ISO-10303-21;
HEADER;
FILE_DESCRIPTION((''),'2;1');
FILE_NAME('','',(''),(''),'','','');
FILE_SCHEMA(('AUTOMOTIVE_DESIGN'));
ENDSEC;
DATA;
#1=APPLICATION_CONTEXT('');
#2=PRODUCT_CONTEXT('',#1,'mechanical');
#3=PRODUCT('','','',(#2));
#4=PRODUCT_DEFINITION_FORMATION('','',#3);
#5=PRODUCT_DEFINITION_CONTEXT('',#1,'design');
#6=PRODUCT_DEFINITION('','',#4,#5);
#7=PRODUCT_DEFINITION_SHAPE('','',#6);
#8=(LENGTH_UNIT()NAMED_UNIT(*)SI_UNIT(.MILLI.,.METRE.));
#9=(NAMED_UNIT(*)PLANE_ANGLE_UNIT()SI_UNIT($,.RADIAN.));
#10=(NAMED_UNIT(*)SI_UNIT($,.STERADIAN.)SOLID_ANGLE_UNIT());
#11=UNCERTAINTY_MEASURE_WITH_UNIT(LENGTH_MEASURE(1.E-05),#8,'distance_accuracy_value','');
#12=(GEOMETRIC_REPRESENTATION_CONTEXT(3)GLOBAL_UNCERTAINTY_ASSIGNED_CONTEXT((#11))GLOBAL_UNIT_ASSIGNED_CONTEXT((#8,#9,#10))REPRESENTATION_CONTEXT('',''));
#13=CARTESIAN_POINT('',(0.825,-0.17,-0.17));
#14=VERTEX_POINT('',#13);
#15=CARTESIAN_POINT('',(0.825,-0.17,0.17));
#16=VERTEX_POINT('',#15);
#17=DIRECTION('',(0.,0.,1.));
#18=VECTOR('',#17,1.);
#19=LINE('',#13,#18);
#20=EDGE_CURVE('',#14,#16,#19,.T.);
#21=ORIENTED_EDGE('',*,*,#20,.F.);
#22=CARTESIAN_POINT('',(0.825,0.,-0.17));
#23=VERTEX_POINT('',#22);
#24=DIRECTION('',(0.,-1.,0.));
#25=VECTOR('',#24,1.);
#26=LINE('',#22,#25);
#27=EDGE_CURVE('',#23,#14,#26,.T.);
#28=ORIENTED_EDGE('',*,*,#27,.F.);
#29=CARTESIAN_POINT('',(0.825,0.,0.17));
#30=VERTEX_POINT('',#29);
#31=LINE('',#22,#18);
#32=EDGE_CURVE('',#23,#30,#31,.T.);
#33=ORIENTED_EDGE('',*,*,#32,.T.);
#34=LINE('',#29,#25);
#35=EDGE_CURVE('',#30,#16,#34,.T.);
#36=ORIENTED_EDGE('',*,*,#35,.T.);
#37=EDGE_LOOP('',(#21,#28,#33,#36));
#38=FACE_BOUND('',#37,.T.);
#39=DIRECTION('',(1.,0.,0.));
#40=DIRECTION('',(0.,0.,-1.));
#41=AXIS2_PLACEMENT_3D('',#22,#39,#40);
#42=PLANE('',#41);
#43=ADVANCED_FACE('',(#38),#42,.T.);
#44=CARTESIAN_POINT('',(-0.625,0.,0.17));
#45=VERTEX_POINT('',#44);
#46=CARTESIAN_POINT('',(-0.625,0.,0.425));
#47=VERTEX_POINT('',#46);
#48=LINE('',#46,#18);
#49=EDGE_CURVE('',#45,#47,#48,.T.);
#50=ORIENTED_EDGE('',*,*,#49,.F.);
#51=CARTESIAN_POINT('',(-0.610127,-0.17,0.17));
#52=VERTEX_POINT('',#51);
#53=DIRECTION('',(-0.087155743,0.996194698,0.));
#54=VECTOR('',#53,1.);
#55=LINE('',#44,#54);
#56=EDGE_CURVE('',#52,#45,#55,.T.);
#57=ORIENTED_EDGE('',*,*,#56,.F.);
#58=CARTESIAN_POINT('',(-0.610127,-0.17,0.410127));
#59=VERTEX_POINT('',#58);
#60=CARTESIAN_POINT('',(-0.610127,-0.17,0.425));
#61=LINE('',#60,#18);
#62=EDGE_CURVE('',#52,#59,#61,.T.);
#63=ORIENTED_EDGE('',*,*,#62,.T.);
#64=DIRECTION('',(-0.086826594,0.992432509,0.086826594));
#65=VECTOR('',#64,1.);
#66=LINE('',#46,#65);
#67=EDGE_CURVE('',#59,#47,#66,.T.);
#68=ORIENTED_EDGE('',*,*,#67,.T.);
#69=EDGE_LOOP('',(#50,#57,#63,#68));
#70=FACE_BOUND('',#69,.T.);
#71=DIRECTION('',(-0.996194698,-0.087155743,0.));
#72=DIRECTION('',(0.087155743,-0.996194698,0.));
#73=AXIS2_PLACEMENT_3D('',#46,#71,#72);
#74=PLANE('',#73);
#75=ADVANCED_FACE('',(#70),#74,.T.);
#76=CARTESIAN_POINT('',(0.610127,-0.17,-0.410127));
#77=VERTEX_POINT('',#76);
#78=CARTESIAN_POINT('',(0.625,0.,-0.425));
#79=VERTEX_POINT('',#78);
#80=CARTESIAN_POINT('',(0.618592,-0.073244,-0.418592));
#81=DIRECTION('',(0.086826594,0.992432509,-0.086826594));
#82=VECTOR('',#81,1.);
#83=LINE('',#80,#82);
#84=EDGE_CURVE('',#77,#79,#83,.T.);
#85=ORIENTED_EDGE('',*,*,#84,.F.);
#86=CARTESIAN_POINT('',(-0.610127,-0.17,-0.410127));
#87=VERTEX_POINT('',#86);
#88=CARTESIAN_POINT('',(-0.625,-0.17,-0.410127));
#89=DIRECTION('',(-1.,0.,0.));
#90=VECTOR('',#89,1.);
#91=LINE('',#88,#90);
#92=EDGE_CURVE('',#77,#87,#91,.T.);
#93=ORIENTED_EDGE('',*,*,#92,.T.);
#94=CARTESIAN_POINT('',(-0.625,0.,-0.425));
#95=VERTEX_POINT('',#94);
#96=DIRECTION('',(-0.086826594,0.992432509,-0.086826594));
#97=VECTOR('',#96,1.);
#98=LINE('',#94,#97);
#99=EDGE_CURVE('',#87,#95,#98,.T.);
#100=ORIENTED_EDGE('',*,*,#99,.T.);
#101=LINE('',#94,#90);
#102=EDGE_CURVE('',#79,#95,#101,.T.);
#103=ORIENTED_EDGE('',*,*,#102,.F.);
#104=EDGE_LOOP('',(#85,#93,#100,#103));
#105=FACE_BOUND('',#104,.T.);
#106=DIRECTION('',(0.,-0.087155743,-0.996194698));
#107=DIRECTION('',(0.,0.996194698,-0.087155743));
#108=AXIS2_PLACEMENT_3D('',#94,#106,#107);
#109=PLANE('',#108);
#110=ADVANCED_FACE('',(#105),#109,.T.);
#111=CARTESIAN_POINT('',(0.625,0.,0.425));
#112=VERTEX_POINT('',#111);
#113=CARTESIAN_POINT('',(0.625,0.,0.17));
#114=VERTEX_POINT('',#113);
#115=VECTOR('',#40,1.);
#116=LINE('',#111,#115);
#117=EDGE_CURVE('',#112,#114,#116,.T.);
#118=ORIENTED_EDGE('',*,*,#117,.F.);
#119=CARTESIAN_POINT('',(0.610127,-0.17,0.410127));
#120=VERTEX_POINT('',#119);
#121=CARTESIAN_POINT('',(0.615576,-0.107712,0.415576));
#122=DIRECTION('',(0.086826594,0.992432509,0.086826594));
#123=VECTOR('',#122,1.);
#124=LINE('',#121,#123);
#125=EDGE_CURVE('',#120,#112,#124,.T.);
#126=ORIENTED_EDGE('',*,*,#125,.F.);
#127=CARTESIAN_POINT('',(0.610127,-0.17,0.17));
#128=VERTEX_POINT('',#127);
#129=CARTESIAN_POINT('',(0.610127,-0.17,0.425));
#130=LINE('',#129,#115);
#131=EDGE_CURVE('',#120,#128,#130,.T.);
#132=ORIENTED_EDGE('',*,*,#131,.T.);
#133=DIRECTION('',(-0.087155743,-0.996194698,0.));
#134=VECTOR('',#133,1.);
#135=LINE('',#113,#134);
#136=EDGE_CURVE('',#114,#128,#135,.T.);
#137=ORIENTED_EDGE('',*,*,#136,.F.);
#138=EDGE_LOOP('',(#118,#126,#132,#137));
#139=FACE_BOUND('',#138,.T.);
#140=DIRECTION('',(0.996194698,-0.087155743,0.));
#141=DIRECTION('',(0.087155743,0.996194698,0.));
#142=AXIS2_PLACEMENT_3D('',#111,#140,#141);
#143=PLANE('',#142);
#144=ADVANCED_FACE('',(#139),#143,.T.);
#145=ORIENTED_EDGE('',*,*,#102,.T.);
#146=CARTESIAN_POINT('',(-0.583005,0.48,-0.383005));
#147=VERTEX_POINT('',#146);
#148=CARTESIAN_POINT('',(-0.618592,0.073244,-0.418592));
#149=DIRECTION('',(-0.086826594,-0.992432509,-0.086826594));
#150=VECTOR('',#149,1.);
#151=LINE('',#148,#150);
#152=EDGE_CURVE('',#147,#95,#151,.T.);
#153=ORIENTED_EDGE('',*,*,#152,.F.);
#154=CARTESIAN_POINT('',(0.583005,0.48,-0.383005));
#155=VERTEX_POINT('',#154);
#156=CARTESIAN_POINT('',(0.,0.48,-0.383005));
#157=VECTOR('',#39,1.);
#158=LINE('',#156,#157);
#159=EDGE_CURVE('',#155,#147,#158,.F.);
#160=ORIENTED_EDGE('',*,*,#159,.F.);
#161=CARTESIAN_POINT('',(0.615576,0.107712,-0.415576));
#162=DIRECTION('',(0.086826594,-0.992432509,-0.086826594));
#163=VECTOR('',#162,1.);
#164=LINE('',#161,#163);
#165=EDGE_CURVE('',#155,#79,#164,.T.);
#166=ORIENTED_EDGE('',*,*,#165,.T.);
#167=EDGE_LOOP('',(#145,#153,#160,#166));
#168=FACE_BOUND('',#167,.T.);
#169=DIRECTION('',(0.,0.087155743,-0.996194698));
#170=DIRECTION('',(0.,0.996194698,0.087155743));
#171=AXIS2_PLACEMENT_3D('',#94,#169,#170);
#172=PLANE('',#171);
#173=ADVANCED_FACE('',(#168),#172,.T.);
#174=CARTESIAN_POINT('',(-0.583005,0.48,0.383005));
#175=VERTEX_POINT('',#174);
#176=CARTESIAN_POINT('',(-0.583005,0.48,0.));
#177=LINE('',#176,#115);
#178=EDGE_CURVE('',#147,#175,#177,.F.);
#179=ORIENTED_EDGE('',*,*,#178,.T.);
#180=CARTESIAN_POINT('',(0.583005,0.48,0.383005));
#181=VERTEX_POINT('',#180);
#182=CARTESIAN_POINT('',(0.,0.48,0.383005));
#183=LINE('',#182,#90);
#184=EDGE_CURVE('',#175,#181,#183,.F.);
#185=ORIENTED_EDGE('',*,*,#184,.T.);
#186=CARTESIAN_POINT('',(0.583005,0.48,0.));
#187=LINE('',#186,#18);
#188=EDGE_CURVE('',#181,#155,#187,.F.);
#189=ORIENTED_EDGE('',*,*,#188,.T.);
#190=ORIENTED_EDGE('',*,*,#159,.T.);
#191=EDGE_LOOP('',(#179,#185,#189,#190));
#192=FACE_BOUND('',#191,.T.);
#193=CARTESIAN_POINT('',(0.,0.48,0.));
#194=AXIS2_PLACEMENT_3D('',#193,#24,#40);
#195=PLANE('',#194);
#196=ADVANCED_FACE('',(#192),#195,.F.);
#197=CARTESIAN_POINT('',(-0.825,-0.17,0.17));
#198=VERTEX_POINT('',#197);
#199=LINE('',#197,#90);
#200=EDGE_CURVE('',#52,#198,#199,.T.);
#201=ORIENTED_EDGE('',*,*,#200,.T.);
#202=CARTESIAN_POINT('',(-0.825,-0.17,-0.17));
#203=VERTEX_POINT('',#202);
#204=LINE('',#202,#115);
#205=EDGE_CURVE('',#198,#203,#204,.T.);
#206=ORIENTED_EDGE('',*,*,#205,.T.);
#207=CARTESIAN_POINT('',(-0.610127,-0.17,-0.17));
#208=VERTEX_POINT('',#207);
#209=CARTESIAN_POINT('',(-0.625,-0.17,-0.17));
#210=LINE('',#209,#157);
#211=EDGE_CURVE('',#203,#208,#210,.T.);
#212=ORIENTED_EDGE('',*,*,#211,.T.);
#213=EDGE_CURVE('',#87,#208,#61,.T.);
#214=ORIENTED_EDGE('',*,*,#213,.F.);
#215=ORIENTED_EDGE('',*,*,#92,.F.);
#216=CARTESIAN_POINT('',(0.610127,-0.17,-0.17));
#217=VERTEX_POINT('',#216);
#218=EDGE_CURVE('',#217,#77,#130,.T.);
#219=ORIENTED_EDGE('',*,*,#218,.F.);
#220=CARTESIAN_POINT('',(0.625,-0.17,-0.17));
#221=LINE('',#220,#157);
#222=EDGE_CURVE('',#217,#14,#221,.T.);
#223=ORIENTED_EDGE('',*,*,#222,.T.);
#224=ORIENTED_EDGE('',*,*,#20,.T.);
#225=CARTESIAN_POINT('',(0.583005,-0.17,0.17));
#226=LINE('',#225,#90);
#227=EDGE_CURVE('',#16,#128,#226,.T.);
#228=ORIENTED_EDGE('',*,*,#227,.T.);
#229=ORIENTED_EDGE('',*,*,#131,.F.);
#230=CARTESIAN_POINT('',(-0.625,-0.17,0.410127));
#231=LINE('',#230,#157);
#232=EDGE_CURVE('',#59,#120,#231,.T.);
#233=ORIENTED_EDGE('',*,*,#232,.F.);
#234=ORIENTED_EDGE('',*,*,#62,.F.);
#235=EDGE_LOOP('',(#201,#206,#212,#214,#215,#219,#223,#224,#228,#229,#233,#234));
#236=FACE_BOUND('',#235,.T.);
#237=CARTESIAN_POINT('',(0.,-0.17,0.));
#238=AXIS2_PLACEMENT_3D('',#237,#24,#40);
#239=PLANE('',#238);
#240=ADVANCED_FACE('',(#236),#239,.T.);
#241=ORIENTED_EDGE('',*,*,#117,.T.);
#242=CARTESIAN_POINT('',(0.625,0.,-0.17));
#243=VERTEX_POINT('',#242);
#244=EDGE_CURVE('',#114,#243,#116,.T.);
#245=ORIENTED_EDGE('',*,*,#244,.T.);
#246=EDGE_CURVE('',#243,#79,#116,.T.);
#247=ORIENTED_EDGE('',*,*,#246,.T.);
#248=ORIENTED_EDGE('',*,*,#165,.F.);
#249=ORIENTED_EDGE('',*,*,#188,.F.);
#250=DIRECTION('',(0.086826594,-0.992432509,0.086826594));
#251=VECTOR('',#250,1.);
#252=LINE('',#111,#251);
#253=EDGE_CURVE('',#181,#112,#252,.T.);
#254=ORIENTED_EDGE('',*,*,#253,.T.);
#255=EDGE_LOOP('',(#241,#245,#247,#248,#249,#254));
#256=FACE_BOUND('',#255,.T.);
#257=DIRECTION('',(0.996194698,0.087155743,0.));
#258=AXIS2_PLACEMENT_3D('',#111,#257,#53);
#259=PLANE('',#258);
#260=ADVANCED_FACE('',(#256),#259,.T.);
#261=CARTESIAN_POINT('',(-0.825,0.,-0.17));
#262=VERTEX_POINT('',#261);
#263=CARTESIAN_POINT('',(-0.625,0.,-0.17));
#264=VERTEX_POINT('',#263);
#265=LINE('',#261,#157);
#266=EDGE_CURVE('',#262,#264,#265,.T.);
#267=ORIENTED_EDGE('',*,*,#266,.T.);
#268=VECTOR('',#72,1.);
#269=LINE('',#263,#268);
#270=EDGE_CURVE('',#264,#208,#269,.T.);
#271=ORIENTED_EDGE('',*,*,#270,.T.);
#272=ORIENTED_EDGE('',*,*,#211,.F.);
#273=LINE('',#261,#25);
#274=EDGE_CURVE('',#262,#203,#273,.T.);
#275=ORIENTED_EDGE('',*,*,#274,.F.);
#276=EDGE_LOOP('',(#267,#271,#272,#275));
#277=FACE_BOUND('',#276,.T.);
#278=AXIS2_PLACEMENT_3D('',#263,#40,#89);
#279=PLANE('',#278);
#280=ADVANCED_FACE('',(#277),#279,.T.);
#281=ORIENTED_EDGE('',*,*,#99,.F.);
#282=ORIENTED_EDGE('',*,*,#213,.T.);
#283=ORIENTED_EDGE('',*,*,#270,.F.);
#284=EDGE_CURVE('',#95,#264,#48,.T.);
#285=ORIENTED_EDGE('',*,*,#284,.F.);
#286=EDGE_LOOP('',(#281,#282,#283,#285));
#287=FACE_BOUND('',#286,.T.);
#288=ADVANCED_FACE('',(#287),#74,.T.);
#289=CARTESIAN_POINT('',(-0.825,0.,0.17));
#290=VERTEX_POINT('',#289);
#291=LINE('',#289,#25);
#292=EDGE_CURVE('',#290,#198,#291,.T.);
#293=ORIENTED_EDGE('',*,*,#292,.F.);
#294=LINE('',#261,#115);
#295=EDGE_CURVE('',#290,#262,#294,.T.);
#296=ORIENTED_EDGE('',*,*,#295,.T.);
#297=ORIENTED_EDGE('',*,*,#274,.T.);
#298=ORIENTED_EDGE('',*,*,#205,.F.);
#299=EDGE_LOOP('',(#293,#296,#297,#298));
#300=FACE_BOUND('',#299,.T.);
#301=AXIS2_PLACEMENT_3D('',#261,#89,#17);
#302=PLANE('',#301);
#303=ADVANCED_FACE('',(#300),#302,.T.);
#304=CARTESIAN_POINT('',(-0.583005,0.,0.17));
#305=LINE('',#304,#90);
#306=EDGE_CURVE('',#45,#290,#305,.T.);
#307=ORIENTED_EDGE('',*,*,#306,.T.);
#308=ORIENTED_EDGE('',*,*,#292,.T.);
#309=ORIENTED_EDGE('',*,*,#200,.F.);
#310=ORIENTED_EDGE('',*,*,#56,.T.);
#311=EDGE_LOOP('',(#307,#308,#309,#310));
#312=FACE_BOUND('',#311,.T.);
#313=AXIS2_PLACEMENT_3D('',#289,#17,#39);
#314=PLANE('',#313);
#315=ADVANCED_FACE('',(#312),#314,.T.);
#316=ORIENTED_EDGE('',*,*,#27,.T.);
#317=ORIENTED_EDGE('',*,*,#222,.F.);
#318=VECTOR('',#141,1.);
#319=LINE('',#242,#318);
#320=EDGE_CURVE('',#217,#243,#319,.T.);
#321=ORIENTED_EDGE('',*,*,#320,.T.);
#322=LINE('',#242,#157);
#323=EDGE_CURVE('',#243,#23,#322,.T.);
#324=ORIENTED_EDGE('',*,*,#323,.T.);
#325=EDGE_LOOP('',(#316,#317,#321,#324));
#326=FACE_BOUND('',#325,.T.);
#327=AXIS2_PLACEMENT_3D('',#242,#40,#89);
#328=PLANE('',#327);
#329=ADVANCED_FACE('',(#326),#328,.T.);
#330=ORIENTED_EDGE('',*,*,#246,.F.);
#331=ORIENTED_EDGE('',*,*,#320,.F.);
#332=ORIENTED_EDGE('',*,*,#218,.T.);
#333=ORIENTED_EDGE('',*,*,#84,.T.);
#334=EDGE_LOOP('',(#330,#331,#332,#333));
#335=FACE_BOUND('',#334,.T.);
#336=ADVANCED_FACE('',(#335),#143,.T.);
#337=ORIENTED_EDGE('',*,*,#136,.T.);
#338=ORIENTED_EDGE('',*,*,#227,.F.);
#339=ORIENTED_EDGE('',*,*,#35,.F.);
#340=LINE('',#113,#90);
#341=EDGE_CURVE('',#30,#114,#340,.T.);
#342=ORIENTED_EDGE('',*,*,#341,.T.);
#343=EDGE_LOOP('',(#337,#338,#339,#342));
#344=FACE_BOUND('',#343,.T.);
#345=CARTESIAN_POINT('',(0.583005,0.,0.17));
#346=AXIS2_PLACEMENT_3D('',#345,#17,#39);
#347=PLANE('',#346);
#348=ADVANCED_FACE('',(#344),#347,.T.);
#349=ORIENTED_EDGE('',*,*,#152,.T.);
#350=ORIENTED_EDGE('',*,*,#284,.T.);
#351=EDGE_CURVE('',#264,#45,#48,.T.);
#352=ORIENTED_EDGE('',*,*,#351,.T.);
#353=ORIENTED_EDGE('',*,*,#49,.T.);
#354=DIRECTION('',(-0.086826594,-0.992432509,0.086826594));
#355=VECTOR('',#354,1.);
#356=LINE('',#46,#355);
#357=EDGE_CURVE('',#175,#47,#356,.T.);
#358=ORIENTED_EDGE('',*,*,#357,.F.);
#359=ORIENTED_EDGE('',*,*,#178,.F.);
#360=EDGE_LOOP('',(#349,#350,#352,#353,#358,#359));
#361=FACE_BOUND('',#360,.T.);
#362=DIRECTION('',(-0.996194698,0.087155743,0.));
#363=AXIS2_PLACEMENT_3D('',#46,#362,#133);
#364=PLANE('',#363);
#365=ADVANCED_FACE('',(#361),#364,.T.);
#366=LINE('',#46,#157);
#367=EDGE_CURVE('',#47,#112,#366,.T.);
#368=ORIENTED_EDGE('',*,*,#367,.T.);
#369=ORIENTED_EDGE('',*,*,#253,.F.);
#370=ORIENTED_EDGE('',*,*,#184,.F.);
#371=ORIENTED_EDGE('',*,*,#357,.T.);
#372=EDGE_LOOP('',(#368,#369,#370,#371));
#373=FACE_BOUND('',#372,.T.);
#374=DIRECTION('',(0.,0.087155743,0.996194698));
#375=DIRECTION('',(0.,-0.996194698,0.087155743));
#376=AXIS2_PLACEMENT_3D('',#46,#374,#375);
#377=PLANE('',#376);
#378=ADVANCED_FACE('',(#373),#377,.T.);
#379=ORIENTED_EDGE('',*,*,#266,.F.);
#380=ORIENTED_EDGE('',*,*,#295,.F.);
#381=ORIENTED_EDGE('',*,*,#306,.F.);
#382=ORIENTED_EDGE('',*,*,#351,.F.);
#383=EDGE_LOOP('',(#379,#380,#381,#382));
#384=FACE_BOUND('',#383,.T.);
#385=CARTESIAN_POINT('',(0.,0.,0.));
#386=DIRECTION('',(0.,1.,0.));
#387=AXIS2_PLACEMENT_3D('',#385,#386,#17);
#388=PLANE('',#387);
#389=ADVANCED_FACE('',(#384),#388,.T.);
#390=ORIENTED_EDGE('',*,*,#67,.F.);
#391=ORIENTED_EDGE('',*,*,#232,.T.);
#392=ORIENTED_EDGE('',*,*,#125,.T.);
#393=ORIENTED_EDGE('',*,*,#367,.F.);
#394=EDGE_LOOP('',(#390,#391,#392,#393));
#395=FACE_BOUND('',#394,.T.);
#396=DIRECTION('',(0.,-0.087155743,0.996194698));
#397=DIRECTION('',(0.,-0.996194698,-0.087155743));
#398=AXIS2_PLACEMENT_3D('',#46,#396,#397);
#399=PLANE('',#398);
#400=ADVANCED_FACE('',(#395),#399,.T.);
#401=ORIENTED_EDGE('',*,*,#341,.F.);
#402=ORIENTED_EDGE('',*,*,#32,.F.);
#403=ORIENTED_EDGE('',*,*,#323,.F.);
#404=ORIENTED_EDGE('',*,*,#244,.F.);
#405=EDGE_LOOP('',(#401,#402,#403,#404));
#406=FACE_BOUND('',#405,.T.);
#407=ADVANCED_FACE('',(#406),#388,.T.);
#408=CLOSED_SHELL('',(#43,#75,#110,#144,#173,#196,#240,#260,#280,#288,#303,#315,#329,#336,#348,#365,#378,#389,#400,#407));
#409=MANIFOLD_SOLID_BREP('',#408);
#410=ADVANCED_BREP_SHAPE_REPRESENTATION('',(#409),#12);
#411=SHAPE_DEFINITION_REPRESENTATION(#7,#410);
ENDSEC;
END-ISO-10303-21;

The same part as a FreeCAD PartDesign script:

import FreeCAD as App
import Part
import Sketcher

V = App.Vector

doc = App.newDocument("Part")
params = doc.addObject("Spreadsheet::Sheet", "Params")
for row, (alias, value) in enumerate([
    ("sketch1_width", "1.25 mm"),
    ("sketch1_height", "0.85 mm"),
    ("pad1_length", "0.48 mm"),
    ("pad1_taper", "-5 deg"),
    ("sketch2_width", "1.25 mm"),
    ("sketch2_height", "0.85 mm"),
    ("pad2_length", "0.17 mm"),
    ("pad2_taper", "-5 deg"),
    ("sketch3_height", "0.34 mm"),
    ("pad3_length", "0.17 mm"),
], start=1):
    params.set(f"A{row}", alias)
    params.set(f"B{row}", "=" + value)
    params.setAlias(f"B{row}", alias)

body = doc.addObject("PartDesign::Body", "Body")

sketch1 = doc.addObject("Sketcher::SketchObject", "Sketch")
body.addObject(sketch1)
sketch1.AttachmentSupport = (doc.XZ_Plane, [""])
sketch1.MapMode = "FlatFace"
sketch1.addGeometry([
    Part.LineSegment(V(-0.6, -0.4, 0), V(-0.6, 0.4, 0)),
    Part.LineSegment(V(-0.6, 0.4, 0), V(0.6, 0.4, 0)),
    Part.LineSegment(V(0.6, 0.4, 0), V(0.6, -0.4, 0)),
    Part.LineSegment(V(0.6, -0.4, 0), V(-0.6, -0.4, 0)),
], False)
sketch1.addConstraint([
    Sketcher.Constraint("Coincident", 0, 2, 1, 1),
    Sketcher.Constraint("Coincident", 1, 2, 2, 1),
    Sketcher.Constraint("Coincident", 2, 2, 3, 1),
    Sketcher.Constraint("Coincident", 3, 2, 0, 1),
    Sketcher.Constraint("Vertical", 0),
    Sketcher.Constraint("Horizontal", 1),
    Sketcher.Constraint("Vertical", 2),
    Sketcher.Constraint("Horizontal", 3),
    Sketcher.Constraint("Symmetric", 0, 2, 2, 2, -1, 1),
    Sketcher.Constraint("DistanceX", 1, 1, 1, 2, 1.25),
    Sketcher.Constraint("DistanceY", 0, 1, 0, 2, 0.85),
])
sketch1.setExpression("Constraints[9]", "Params.sketch1_width")
sketch1.setExpression("Constraints[10]", "Params.sketch1_height")
pad1 = doc.addObject("PartDesign::Pad", "Pad")
body.addObject(pad1)
pad1.Profile = sketch1
pad1.setExpression("Length", "Params.pad1_length")
pad1.Reversed = True
pad1.setExpression("TaperAngle", "Params.pad1_taper")

sketch2 = doc.addObject("Sketcher::SketchObject", "Sketch001")
body.addObject(sketch2)
sketch2.AttachmentSupport = (doc.XZ_Plane, [""])
sketch2.MapMode = "FlatFace"
sketch2.addGeometry([
    Part.LineSegment(V(-0.6, -0.4, 0), V(-0.6, 0.4, 0)),
    Part.LineSegment(V(-0.6, 0.4, 0), V(0.6, 0.4, 0)),
    Part.LineSegment(V(0.6, 0.4, 0), V(0.6, -0.4, 0)),
    Part.LineSegment(V(0.6, -0.4, 0), V(-0.6, -0.4, 0)),
], False)
sketch2.addConstraint([
    Sketcher.Constraint("Coincident", 0, 2, 1, 1),
    Sketcher.Constraint("Coincident", 1, 2, 2, 1),
    Sketcher.Constraint("Coincident", 2, 2, 3, 1),
    Sketcher.Constraint("Coincident", 3, 2, 0, 1),
    Sketcher.Constraint("Vertical", 0),
    Sketcher.Constraint("Horizontal", 1),
    Sketcher.Constraint("Vertical", 2),
    Sketcher.Constraint("Horizontal", 3),
    Sketcher.Constraint("Symmetric", 0, 2, 2, 2, -1, 1),
    Sketcher.Constraint("DistanceX", 1, 1, 1, 2, 1.25),
    Sketcher.Constraint("DistanceY", 0, 1, 0, 2, 0.85),
])
sketch2.setExpression("Constraints[9]", "Params.sketch2_width")
sketch2.setExpression("Constraints[10]", "Params.sketch2_height")
pad2 = doc.addObject("PartDesign::Pad", "Pad001")
body.addObject(pad2)
pad2.Profile = sketch2
pad2.setExpression("Length", "Params.pad2_length")
pad2.setExpression("TaperAngle", "Params.pad2_taper")

sketch3 = doc.addObject("Sketcher::SketchObject", "Sketch002")
body.addObject(sketch3)
sketch3.AttachmentSupport = (doc.XZ_Plane, [""])
sketch3.MapMode = "FlatFace"
sketch3.AttachmentOffset = App.Placement(V(0, 0, 0.17), App.Rotation())
sketch3.addGeometry([
    Part.LineSegment(V(-0.58, -0.17, 0), V(-0.58, 0.17, 0)),
    Part.LineSegment(V(-0.58, 0.17, 0), V(-0.82, 0.17, 0)),
    Part.LineSegment(V(-0.82, 0.17, 0), V(-0.82, -0.17, 0)),
    Part.LineSegment(V(-0.82, -0.17, 0), V(-0.58, -0.17, 0)),
    Part.LineSegment(V(0.82, -0.17, 0), V(0.82, 0.17, 0)),
    Part.LineSegment(V(0.82, 0.17, 0), V(0.58, 0.17, 0)),
    Part.LineSegment(V(0.58, 0.17, 0), V(0.58, -0.17, 0)),
    Part.LineSegment(V(0.58, -0.17, 0), V(0.82, -0.17, 0)),
], False)
sketch3.addConstraint([
    Sketcher.Constraint("Coincident", 0, 2, 1, 1),
    Sketcher.Constraint("Coincident", 1, 2, 2, 1),
    Sketcher.Constraint("Coincident", 2, 2, 3, 1),
    Sketcher.Constraint("Coincident", 3, 2, 0, 1),
    Sketcher.Constraint("Coincident", 4, 2, 5, 1),
    Sketcher.Constraint("Coincident", 5, 2, 6, 1),
    Sketcher.Constraint("Coincident", 6, 2, 7, 1),
    Sketcher.Constraint("Coincident", 7, 2, 4, 1),
    Sketcher.Constraint("Vertical", 0),
    Sketcher.Constraint("Horizontal", 1),
    Sketcher.Constraint("Vertical", 2),
    Sketcher.Constraint("Horizontal", 3),
    Sketcher.Constraint("Vertical", 4),
    Sketcher.Constraint("Horizontal", 5),
    Sketcher.Constraint("Vertical", 6),
    Sketcher.Constraint("Horizontal", 7),
    Sketcher.Constraint("Symmetric", 2, 2, 4, 2, -1, 1),
    Sketcher.Constraint("Symmetric", 0, 2, 6, 2, -1, 1),
    Sketcher.Constraint("Horizontal", 1, 2, 4, 2),
    Sketcher.Constraint("DistanceY", 0, 1, 0, 2, 0.34),
    Sketcher.Constraint("DistanceX", 1, 2, 4, 2, 1.65),
    Sketcher.Constraint("DistanceX", 1, 2, 1, 1, 0.241995),
])
sketch3.setExpression("Constraints[19]", "Params.sketch3_height")
pad3 = doc.addObject("PartDesign::Pad", "Pad002")
body.addObject(pad3)
pad3.Profile = sketch3
pad3.setExpression("Length", "Params.pad3_length")
pad3.Reversed = True

doc.recompute()
